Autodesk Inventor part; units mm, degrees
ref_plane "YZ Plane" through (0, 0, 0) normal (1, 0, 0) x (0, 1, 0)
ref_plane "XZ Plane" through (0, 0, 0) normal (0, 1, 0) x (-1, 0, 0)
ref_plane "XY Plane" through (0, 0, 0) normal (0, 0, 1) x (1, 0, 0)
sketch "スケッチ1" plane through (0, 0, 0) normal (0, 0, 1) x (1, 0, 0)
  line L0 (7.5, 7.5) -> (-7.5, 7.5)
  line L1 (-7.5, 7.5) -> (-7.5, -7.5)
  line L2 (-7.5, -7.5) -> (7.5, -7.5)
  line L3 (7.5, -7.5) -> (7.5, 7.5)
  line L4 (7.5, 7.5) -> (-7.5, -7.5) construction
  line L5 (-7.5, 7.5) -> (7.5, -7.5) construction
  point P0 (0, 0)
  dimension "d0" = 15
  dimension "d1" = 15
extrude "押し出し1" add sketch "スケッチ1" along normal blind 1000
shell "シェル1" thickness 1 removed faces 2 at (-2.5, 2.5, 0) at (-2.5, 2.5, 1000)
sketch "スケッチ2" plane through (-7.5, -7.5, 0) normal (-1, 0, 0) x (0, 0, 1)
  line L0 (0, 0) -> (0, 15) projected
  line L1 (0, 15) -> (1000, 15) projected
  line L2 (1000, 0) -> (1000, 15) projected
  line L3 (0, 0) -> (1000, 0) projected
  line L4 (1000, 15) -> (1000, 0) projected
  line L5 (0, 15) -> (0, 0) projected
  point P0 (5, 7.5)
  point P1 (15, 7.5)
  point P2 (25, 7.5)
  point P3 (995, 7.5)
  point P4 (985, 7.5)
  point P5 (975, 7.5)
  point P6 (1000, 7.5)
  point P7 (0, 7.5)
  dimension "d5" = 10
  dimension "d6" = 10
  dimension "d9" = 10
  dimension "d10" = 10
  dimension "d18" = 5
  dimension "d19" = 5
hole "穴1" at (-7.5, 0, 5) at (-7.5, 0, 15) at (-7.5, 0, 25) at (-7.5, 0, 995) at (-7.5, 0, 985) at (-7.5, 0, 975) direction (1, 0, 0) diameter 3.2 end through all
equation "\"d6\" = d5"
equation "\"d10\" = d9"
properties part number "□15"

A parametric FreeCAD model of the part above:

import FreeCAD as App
import Part
import Sketcher

V = App.Vector
Q = App.Units.Quantity


def faces_at(feature, points):
    """Names of the faces that lie closest to the given points."""
    faces = feature.Shape.Faces
    near = lambda p: min(range(len(faces)), key=lambda i: faces[i].distToShape(Part.Vertex(*p))[0])
    return sorted({f"Face{near(p) + 1}" for p in points})

doc = App.newDocument("Part")
body = doc.addObject("PartDesign::Body", "Body")

sketch1 = body.newObject("Sketcher::SketchObject", "Sketch")
sketch1.AttachmentSupport = (doc.getObject("XY_Plane"), [""])
sketch1.MapMode = "FlatFace"
sketch1.addGeometry(Part.LineSegment(V(7.5, -7.5, 0), V(7.5, 7.5, 0)), False)
sketch1.addGeometry(Part.LineSegment(V(7.5, 7.5, 0), V(-7.5, 7.5, 0)), False)
sketch1.addGeometry(Part.LineSegment(V(-7.5, 7.5, 0), V(-7.5, -7.5, 0)), False)
sketch1.addGeometry(Part.LineSegment(V(-7.5, -7.5, 0), V(7.5, -7.5, 0)), False)
sketch1.addConstraint(Sketcher.Constraint("Coincident", 0, 2, 1, 1))
sketch1.addConstraint(Sketcher.Constraint("Coincident", 1, 2, 2, 1))
sketch1.addConstraint(Sketcher.Constraint("Coincident", 2, 2, 3, 1))
sketch1.addConstraint(Sketcher.Constraint("Coincident", 3, 2, 0, 1))
sketch1.addConstraint(Sketcher.Constraint("Vertical", 0))
sketch1.addConstraint(Sketcher.Constraint("Horizontal", 1))
sketch1.addConstraint(Sketcher.Constraint("Vertical", 2))
sketch1.addConstraint(Sketcher.Constraint("Horizontal", 3))
sketch1.addConstraint(Sketcher.Constraint("Symmetric", 0, 2, 2, 2, -1, 1))
sketch1.addConstraint(Sketcher.Constraint("Equal", 3, 0))
sketch1.addConstraint(Sketcher.Constraint("DistanceX", 1, 2, 1, 1, Q("15 mm")))
pad1 = body.newObject("PartDesign::Pad", "Pad")
pad1.Profile = sketch1
pad1.Length = 1000
doc.recompute()

thickness = body.newObject("PartDesign::Thickness", "Thickness")
thickness.Base = (pad1, faces_at(pad1, [(-2.5, 2.5, 0), (-2.5, 2.5, 1000)]))
thickness.Value = 1
thickness.Reversed = True
thickness.Join = "Intersection"

sketch2 = body.newObject("Sketcher::SketchObject", "Sketch001")
sketch2.AttachmentSupport = (doc.getObject("YZ_Plane"), [""])
sketch2.MapMode = "FlatFace"
sketch2.AttachmentOffset = App.Placement(V(0, 0, -7.5), App.Rotation())
sketch2.addGeometry(Part.Circle(V(0, 5, 0), V(0, 0, 1), 1.6), False)
sketch2.addGeometry(Part.Circle(V(0, 15, 0), V(0, 0, 1), 1.6), False)
sketch2.addGeometry(Part.Circle(V(0, 25, 0), V(0, 0, 1), 1.6), False)
sketch2.addGeometry(Part.Circle(V(0, 995, 0), V(0, 0, 1), 1.6), False)
sketch2.addGeometry(Part.Circle(V(0, 985, 0), V(0, 0, 1), 1.6), False)
sketch2.addGeometry(Part.Circle(V(0, 975, 0), V(0, 0, 1), 1.6), False)
sketch2.addConstraint(Sketcher.Constraint("Equal", 0, 1))
sketch2.addConstraint(Sketcher.Constraint("Equal", 1, 2))
sketch2.addConstraint(Sketcher.Constraint("Equal", 2, 3))
sketch2.addConstraint(Sketcher.Constraint("Equal", 3, 4))
sketch2.addConstraint(Sketcher.Constraint("Equal", 4, 5))
sketch2.addConstraint(Sketcher.Constraint("PointOnObject", 0, 3, -2))
sketch2.addConstraint(Sketcher.Constraint("PointOnObject", 1, 3, -2))
sketch2.addConstraint(Sketcher.Constraint("PointOnObject", 2, 3, -2))
sketch2.addConstraint(Sketcher.Constraint("PointOnObject", 3, 3, -2))
sketch2.addConstraint(Sketcher.Constraint("PointOnObject", 4, 3, -2))
sketch2.addConstraint(Sketcher.Constraint("PointOnObject", 5, 3, -2))
sketch2.addConstraint(Sketcher.Constraint("Diameter", 0, Q("3.2 mm")))
sketch2.addConstraint(Sketcher.Constraint("DistanceY", -1, 1, 0, 3, Q("5 mm")))
sketch2.addConstraint(Sketcher.Constraint("DistanceY", -1, 1, 1, 3, Q("15 mm")))
sketch2.addConstraint(Sketcher.Constraint("DistanceY", -1, 1, 2, 3, Q("25 mm")))
sketch2.addConstraint(Sketcher.Constraint("DistanceY", -1, 1, 3, 3, Q("995 mm")))
sketch2.addConstraint(Sketcher.Constraint("DistanceY", -1, 1, 4, 3, Q("985 mm")))
sketch2.addConstraint(Sketcher.Constraint("DistanceY", -1, 1, 5, 3, Q("975 mm")))
doc.recompute()
hole = body.newObject("PartDesign::Hole", "Hole")
hole.Profile = sketch2
hole.ThreadType = "None"
hole.Diameter = 3.2
hole.DepthType = "ThroughAll"
hole.Reversed = True

doc.recompute()
